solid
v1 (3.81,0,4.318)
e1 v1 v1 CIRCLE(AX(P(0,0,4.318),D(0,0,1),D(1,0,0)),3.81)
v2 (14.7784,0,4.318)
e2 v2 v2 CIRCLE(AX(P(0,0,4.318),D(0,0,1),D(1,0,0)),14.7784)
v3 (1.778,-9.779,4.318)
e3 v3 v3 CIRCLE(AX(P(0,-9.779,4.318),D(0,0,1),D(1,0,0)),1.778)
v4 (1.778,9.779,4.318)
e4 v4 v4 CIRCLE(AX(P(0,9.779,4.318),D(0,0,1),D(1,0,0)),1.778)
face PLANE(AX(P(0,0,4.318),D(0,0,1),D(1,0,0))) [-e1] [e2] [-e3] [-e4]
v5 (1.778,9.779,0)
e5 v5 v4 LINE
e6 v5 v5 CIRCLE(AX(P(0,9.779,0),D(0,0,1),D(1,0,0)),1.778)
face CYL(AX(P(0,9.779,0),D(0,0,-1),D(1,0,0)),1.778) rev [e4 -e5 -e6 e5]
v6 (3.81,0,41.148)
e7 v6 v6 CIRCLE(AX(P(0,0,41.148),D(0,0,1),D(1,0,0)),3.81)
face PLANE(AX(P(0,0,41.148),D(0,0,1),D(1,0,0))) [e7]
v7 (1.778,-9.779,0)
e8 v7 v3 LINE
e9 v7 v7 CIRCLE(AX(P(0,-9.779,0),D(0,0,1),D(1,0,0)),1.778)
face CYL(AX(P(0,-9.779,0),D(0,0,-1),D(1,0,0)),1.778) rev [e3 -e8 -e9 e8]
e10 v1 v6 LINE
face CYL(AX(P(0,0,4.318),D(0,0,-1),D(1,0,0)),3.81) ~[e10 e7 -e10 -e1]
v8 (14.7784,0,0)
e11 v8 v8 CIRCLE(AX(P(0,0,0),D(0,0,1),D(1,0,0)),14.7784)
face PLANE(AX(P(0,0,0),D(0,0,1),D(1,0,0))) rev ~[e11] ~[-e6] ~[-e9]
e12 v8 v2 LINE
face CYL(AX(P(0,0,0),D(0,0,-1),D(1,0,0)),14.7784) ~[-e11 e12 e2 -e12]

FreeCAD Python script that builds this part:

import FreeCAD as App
import Part
import Sketcher
Q = App.Units.Quantity

doc = App.newDocument("Part")
body = doc.addObject("PartDesign::Body", "Body")

sketch1 = body.newObject("Sketcher::SketchObject", "Sketch")
sketch1.AttachmentSupport = (doc.getObject("XY_Plane"), [""])
sketch1.MapMode = "FlatFace"
sketch1.addGeometry(Part.Circle(App.Vector(0, 0, 0), App.Vector(0, 0, 1), 14.8), False)
sketch1.addGeometry(Part.Circle(App.Vector(0, -9.8, 0), App.Vector(0, 0, 1), 1.8), False)
sketch1.addGeometry(Part.Circle(App.Vector(0, 9.8, 0), App.Vector(0, 0, 1), 1.8), False)
sketch1.addConstraint(Sketcher.Constraint("Coincident", 0, 3, -1, 1))
sketch1.addConstraint(Sketcher.Constraint("Equal", 1, 2))
sketch1.addConstraint(Sketcher.Constraint("Symmetric", 1, 3, 2, 3, -1, 1))
sketch1.addConstraint(Sketcher.Constraint("PointOnObject", 1, 3, -2))
sketch1.addConstraint(Sketcher.Constraint("Diameter", 1, Q("0.14 in")))
sketch1.addConstraint(Sketcher.Constraint("Diameter", 0, Q("29.5568 mm")))
sketch1.addConstraint(Sketcher.Constraint("DistanceY", 1, 3, 2, 3, Q("0.77 in")))
pad1 = body.newObject("PartDesign::Pad", "Pad")
pad1.Profile = sketch1
pad1.Length = Q("0.17 in")

sketch2 = body.newObject("Sketcher::SketchObject", "Sketch001")
sketch2.AttachmentSupport = (doc.getObject("XY_Plane"), [""])
sketch2.MapMode = "FlatFace"
sketch2.AttachmentOffset = App.Placement(App.Vector(0, 0, 0.17 * 25.4), App.Rotation())
sketch2.addGeometry(Part.Circle(App.Vector(0, 0, 0), App.Vector(0, 0, 1), 3.8), False)
sketch2.addConstraint(Sketcher.Constraint("Coincident", 0, 3, -1, 1))
sketch2.addConstraint(Sketcher.Constraint("Diameter", 0, Q("0.3 in")))
pad2 = body.newObject("PartDesign::Pad", "Pad001")
pad2.Profile = sketch2
pad2.Length = Q("1.45 in")

doc.recompute()
